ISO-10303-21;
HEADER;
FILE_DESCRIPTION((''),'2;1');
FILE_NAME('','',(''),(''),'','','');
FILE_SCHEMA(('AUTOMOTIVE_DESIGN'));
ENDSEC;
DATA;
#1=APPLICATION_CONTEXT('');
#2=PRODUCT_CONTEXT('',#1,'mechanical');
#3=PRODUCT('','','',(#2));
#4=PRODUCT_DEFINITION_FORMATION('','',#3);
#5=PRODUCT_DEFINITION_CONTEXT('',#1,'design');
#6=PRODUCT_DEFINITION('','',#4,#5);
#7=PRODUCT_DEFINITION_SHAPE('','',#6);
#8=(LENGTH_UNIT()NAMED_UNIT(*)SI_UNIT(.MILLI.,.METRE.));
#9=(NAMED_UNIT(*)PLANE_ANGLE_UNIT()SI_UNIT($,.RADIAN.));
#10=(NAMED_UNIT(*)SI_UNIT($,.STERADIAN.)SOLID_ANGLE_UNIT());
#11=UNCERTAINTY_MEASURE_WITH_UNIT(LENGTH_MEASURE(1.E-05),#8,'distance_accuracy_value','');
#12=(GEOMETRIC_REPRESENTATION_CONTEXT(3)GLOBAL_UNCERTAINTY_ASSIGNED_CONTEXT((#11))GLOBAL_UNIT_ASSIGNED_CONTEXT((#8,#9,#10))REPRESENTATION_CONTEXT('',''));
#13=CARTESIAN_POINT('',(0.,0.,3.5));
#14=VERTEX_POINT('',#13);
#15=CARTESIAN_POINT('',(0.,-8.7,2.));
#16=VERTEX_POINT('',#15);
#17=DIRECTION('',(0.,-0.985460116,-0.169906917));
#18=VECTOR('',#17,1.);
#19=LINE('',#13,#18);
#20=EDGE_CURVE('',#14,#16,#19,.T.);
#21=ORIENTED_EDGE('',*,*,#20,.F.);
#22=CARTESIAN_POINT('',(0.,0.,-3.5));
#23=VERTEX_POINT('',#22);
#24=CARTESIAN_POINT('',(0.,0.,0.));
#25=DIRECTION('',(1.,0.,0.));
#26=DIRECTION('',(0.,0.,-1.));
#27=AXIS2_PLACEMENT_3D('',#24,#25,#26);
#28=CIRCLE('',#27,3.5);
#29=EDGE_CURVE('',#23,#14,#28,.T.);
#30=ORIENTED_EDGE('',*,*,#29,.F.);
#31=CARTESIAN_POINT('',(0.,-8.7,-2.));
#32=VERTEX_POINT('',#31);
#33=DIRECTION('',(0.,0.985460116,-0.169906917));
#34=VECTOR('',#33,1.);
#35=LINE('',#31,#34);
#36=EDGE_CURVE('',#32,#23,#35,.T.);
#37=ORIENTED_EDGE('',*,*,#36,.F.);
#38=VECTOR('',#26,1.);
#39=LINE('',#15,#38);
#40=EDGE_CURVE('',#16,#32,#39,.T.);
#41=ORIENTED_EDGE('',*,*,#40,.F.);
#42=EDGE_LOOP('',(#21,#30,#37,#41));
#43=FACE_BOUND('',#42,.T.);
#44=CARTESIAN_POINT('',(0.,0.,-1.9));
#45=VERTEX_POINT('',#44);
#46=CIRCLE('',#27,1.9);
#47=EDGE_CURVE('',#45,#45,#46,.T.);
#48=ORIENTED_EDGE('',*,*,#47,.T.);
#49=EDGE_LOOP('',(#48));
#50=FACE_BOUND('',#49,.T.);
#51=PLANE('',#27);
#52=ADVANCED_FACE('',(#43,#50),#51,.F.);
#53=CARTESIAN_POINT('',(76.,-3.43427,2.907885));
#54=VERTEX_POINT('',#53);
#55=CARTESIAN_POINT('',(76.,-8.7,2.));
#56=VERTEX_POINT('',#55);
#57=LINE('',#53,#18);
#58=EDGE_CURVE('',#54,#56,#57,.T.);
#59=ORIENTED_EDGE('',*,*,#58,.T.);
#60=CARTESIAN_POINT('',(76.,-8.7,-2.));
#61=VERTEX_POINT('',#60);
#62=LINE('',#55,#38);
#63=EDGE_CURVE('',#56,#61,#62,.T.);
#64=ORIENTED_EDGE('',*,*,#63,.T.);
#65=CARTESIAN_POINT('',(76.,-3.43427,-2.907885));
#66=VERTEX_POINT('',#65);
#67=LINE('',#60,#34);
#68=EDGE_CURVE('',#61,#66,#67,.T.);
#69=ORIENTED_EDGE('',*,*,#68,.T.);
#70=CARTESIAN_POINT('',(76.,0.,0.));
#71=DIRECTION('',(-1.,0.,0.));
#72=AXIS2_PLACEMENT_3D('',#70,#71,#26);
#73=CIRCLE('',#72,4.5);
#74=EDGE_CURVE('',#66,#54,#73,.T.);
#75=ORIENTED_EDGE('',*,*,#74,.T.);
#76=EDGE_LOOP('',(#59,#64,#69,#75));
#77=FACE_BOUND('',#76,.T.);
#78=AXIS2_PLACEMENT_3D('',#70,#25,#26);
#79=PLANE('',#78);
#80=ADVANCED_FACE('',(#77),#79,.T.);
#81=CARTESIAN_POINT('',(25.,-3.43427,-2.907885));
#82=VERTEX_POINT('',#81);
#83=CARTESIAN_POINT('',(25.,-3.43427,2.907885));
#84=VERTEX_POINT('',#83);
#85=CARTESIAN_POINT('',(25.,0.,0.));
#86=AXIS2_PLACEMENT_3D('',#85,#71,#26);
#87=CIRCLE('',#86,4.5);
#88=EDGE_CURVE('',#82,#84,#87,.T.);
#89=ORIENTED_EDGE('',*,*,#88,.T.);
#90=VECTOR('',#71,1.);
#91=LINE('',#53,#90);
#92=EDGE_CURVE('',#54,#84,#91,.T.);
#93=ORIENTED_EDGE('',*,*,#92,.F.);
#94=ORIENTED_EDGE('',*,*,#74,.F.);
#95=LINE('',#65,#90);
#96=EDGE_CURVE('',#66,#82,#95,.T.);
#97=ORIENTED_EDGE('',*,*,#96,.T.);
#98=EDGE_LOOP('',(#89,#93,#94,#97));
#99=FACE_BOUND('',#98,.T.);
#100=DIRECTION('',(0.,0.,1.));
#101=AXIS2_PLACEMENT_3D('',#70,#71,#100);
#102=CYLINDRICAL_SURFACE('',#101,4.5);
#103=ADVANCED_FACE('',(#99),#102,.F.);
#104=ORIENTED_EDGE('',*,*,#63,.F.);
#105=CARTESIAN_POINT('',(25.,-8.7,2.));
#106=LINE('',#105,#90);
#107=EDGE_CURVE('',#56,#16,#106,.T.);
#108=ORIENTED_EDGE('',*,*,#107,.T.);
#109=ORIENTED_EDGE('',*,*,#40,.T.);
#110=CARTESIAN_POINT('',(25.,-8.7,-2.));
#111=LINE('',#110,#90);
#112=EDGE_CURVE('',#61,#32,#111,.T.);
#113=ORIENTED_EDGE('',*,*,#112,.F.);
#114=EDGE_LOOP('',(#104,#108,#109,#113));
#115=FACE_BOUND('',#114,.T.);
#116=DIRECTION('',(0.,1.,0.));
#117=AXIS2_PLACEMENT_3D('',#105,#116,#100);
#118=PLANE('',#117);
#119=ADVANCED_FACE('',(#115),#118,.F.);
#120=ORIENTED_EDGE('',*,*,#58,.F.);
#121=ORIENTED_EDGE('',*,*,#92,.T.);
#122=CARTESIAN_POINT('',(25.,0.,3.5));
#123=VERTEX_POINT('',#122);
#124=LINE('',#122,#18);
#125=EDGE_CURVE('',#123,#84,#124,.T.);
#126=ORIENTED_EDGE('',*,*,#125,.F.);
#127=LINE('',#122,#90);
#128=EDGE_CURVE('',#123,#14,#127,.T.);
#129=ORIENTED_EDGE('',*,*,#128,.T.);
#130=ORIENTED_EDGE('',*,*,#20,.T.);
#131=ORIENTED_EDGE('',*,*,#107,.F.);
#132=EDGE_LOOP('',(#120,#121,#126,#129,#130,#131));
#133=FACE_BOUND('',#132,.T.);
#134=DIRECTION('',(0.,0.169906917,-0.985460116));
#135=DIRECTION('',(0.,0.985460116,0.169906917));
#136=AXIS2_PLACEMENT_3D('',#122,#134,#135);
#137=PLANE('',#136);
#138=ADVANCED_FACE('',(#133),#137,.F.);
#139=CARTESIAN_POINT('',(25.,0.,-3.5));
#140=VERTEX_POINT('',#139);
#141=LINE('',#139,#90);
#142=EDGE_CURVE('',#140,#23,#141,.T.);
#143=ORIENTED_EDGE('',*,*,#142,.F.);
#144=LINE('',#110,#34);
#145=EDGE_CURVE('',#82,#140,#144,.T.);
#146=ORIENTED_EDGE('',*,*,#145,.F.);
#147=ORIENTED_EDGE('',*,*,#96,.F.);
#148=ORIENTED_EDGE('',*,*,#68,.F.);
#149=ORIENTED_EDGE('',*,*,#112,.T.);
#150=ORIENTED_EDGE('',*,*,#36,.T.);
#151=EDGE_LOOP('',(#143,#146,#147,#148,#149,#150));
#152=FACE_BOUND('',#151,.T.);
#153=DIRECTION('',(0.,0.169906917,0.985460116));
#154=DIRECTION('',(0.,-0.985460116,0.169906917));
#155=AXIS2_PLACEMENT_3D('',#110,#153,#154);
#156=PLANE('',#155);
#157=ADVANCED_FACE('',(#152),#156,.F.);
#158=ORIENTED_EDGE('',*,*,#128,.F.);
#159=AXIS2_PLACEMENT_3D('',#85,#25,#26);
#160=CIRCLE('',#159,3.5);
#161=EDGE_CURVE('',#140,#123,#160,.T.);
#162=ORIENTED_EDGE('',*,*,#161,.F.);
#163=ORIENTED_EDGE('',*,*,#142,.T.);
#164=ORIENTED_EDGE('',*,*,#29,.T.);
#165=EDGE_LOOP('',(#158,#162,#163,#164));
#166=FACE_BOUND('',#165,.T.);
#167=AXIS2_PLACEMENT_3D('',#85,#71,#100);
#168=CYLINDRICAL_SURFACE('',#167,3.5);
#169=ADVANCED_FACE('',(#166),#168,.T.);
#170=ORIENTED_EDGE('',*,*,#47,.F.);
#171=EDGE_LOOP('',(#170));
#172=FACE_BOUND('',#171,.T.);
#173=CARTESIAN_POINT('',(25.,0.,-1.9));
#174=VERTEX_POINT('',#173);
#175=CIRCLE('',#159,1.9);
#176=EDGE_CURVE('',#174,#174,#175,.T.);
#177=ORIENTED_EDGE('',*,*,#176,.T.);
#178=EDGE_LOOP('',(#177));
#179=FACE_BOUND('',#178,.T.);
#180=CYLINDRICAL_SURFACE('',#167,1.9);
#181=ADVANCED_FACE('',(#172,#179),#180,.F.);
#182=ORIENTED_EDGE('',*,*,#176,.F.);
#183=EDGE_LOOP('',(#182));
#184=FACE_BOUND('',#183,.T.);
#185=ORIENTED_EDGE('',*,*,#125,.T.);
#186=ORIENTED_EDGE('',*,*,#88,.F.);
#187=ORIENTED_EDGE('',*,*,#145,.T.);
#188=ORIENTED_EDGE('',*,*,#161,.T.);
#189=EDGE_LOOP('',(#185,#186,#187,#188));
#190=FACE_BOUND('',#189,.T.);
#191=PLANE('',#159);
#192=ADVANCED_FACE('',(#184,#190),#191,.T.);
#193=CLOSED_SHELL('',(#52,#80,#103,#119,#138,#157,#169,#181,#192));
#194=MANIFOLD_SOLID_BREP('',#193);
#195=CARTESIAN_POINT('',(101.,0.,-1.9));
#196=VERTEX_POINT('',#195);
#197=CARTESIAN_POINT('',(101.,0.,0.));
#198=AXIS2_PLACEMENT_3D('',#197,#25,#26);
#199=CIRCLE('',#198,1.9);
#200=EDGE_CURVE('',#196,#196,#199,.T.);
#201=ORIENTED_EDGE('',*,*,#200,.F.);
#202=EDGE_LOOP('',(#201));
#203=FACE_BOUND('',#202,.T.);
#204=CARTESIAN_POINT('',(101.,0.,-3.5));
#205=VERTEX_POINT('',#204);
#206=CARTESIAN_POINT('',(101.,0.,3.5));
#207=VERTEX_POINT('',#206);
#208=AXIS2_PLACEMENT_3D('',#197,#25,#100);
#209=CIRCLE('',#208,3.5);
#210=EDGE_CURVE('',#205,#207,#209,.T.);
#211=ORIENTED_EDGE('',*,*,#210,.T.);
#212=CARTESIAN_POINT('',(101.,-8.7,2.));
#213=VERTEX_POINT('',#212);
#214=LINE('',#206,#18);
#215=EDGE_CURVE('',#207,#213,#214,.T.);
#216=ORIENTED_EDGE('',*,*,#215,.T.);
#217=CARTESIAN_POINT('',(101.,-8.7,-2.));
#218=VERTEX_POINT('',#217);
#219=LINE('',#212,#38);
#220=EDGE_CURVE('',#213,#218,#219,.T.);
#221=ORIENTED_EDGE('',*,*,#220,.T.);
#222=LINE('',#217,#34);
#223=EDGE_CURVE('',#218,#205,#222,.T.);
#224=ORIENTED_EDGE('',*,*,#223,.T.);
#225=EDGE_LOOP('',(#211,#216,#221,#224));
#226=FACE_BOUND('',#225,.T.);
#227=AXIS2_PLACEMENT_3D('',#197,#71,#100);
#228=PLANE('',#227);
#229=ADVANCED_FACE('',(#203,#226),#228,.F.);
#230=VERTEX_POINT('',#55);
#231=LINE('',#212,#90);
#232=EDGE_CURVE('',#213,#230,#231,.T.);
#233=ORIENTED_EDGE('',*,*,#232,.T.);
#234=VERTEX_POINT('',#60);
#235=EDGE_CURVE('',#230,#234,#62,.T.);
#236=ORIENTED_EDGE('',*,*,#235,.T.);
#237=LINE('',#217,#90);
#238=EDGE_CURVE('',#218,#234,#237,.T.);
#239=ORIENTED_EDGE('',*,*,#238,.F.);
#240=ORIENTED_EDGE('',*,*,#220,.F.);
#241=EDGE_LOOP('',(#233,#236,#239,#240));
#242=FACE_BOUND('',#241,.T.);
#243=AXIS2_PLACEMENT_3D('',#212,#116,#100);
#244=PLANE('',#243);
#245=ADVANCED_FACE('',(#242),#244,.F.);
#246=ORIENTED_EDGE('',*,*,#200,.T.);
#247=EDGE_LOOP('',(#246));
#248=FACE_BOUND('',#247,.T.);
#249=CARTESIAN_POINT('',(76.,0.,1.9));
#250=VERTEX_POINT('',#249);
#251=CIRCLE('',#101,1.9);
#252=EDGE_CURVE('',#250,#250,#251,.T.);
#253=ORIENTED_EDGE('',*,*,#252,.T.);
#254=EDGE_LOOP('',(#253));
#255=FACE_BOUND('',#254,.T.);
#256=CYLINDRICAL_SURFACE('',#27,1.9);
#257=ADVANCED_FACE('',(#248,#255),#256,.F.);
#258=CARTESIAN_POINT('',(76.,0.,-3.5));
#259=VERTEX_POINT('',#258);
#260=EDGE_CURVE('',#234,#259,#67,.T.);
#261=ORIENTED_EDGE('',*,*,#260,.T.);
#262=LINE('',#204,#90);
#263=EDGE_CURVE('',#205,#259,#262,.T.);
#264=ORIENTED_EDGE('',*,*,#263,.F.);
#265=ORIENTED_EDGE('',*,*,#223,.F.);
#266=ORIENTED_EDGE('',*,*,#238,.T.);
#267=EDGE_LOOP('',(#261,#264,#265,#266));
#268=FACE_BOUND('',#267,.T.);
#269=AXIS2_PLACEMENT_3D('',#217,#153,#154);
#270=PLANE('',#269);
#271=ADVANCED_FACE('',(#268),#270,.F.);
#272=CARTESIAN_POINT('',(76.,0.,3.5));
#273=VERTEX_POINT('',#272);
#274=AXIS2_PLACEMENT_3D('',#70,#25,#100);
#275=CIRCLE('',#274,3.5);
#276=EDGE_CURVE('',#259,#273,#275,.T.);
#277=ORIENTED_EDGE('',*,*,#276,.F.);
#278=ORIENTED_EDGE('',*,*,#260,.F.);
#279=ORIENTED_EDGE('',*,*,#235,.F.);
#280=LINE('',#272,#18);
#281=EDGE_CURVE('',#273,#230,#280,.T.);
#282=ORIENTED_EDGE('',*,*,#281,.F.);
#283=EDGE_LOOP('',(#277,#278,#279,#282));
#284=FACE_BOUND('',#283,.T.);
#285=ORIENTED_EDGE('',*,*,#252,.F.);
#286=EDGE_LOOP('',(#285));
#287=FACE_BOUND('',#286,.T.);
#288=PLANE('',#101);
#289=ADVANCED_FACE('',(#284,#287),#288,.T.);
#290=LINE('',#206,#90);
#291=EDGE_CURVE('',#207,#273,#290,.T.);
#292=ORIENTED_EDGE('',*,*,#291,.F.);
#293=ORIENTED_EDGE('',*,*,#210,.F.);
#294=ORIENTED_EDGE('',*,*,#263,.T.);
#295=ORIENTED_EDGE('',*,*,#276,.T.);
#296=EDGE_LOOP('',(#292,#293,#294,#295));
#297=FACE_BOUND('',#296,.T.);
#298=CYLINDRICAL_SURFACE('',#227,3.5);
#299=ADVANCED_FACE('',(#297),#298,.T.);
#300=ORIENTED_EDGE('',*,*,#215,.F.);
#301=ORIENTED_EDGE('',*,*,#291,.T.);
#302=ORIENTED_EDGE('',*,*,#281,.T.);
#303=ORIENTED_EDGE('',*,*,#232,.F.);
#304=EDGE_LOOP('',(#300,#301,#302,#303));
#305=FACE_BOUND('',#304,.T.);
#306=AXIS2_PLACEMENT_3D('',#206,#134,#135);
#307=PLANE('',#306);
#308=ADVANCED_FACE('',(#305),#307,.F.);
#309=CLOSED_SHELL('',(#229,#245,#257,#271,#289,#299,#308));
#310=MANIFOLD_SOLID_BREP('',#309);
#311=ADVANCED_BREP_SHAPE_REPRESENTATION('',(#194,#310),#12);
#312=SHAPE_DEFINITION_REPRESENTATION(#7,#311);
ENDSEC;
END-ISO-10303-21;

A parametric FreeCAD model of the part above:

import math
import FreeCAD as App
import Part
import Sketcher
from FreeCAD import Vector
Q = App.Units.Quantity

doc = App.newDocument("Part")
body = doc.addObject("PartDesign::Body", "Body")

# Sketch on YZ plane
sketch1 = body.newObject("Sketcher::SketchObject", "Sketch")
sketch1.AttachmentSupport = (doc.getObject("YZ_Plane"), [""])
sketch1.MapMode = "FlatFace"
sketch1.addGeometry([
    Part.LineSegment(Vector(-8.7, -2, 0), Vector(0, -3.5, 0)),  # 0
    Part.ArcOfCircle(Part.Circle(Vector(0, 0, 0), Vector(0, 0, 1), 3.5), math.radians(-90), math.radians(90)),  # 1
    Part.LineSegment(Vector(0, 3.5, 0), Vector(-8.7, 2, 0)),  # 2
    Part.LineSegment(Vector(-8.7, 2, 0), Vector(-8.7, -2, 0)),  # 3
    Part.Circle(Vector(0, 0, 0), Vector(0, 0, 1), 1.9),  # 4
], False)
sketch1.addConstraint([
    Sketcher.Constraint("Coincident", 0, 2, 1, 1),
    Sketcher.Constraint("Coincident", 1, 2, 2, 1),
    Sketcher.Constraint("Coincident", 2, 2, 3, 1),
    Sketcher.Constraint("Coincident", 3, 2, 0, 1),
    Sketcher.Constraint("Vertical", 3),
    Sketcher.Constraint("Coincident", 1, 3, -1, 1),
    Sketcher.Constraint("Coincident", 4, 3, -1, 1),
    Sketcher.Constraint("PointOnObject", 0, 2, -2),
    Sketcher.Constraint("PointOnObject", 1, 2, -2),
    Sketcher.Constraint("Equal", 0, 2),
    Sketcher.Constraint("Diameter", 4, Q("3.8 mm")),
    Sketcher.Constraint("Radius", 1, Q("3.5 mm")),
    Sketcher.Constraint("DistanceY", 3, 2, 3, 1, Q("4 mm")),
    Sketcher.Constraint("DistanceX", 2, 2, -1, 1, Q("8.7 mm")),
])
pad1 = body.newObject("PartDesign::Pad", "Pad")
pad1.Profile = sketch1
pad1.Length = 25

# Sketch on YZ plane
sketch2 = body.newObject("Sketcher::SketchObject", "Sketch001")
sketch2.AttachmentSupport = (doc.getObject("YZ_Plane"), [""])
sketch2.MapMode = "FlatFace"
sketch2.AttachmentOffset = App.Placement(Vector(0, 0, 25), App.Rotation())
sketch2.addGeometry([
    Part.LineSegment(Vector(-8.7, 2, 0), Vector(-8.7, -2, 0)),
    Part.LineSegment(Vector(-8.7, -2, 0), Vector(-3.43427, -2.907885, 0)),
    Part.ArcOfCircle(Part.Circle(Vector(0, 0, 0), Vector(0, 0, 1), 4.5), math.radians(139.744551), math.radians(220.255449)),
    Part.LineSegment(Vector(-3.43427, 2.907885, 0), Vector(-8.7, 2, 0)),
], False)
sketch2.addConstraint([
    Sketcher.Constraint("Coincident", 0, 2, 1, 1),
    Sketcher.Constraint("Coincident", 1, 2, 2, 2),
    Sketcher.Constraint("Coincident", 2, 1, 3, 1),
    Sketcher.Constraint("Coincident", 3, 2, 0, 1),
    Sketcher.Constraint("Vertical", 0),
    Sketcher.Constraint("Coincident", 2, 3, -1, 1),
    Sketcher.Constraint("Vertical", 1, 2, 2, 1),
    Sketcher.Constraint("Equal", 1, 3),
    Sketcher.Constraint("Radius", 2, Q("4.5 mm")),
    Sketcher.Constraint("DistanceY", 0, 2, 0, 1, Q("4 mm")),
    Sketcher.Constraint("DistanceX", 0, 2, -1, 1, Q("8.7 mm")),
    Sketcher.Constraint("DistanceX", 1, 2, -1, 1, Q("3.43427 mm")),
])
pad2 = body.newObject("PartDesign::Pad", "Pad001")
pad2.Profile = sketch2
pad2.Length = 51
body2 = doc.addObject("PartDesign::Body", "Body001")

# Sketch on YZ plane
sketch3 = body2.newObject("Sketcher::SketchObject", "Sketch002")
sketch3.AttachmentSupport = (doc.getObject("YZ_Plane001"), [""])
sketch3.MapMode = "FlatFace"
sketch3.AttachmentOffset = App.Placement(Vector(0, 0, 76), App.Rotation())
sketch3.addGeometry([
    Part.LineSegment(Vector(0, 3.5, 0), Vector(-8.7, 2, 0)),  # 0
    Part.LineSegment(Vector(-8.7, 2, 0), Vector(-8.7, -2, 0)),  # 1
    Part.LineSegment(Vector(-8.7, -2, 0), Vector(0, -3.5, 0)),  # 2
    Part.ArcOfCircle(Part.Circle(Vector(0, 0, 0), Vector(0, 0, 1), 3.5), math.radians(-90), math.radians(90)),  # 3
    Part.Circle(Vector(0, 0, 0), Vector(0, 0, 1), 1.51),  # 4
], False)
sketch3.addConstraint([
    Sketcher.Constraint("Coincident", 0, 2, 1, 1),
    Sketcher.Constraint("Coincident", 1, 2, 2, 1),
    Sketcher.Constraint("Coincident", 2, 2, 3, 1),
    Sketcher.Constraint("Coincident", 3, 2, 0, 1),
    Sketcher.Constraint("Vertical", 1),
    Sketcher.Constraint("Coincident", 3, 3, -1, 1),
    Sketcher.Constraint("Coincident", 4, 3, -1, 1),
    Sketcher.Constraint("PointOnObject", 2, 2, -2),
    Sketcher.Constraint("PointOnObject", 3, 2, -2),
    Sketcher.Constraint("Equal", 0, 2),
    Sketcher.Constraint("Radius", 3, Q("3.5 mm")),
    Sketcher.Constraint("Diameter", 4, Q("3.02 mm")),
    Sketcher.Constraint("DistanceY", 1, 2, 1, 1, Q("4 mm")),
    Sketcher.Constraint("DistanceX", 0, 2, -1, 1, Q("8.7 mm")),
])
pad3 = body2.newObject("PartDesign::Pad", "Pad002")
pad3.Profile = sketch3
pad3.Length = 25

# Sketch on YZ plane
sketch4 = body2.newObject("Sketcher::SketchObject", "Sketch003")
sketch4.AttachmentSupport = (doc.getObject("YZ_Plane001"), [""])
sketch4.MapMode = "FlatFace"
sketch4.AttachmentOffset = App.Placement(Vector(0, 0, 101), App.Rotation())
sketch4.addGeometry(Part.Circle(Vector(0, 0, 0), Vector(0, 0, 1), 1.9), False)
sketch4.addConstraint([
    Sketcher.Constraint("Coincident", 0, 3, -1, 1),
    Sketcher.Constraint("Diameter", 0, Q("3.8 mm")),
])
pocket1 = body2.newObject("PartDesign::Pocket", "Pocket")
pocket1.Profile = sketch4
pocket1.Type = "ThroughAll"

doc.recompute()
